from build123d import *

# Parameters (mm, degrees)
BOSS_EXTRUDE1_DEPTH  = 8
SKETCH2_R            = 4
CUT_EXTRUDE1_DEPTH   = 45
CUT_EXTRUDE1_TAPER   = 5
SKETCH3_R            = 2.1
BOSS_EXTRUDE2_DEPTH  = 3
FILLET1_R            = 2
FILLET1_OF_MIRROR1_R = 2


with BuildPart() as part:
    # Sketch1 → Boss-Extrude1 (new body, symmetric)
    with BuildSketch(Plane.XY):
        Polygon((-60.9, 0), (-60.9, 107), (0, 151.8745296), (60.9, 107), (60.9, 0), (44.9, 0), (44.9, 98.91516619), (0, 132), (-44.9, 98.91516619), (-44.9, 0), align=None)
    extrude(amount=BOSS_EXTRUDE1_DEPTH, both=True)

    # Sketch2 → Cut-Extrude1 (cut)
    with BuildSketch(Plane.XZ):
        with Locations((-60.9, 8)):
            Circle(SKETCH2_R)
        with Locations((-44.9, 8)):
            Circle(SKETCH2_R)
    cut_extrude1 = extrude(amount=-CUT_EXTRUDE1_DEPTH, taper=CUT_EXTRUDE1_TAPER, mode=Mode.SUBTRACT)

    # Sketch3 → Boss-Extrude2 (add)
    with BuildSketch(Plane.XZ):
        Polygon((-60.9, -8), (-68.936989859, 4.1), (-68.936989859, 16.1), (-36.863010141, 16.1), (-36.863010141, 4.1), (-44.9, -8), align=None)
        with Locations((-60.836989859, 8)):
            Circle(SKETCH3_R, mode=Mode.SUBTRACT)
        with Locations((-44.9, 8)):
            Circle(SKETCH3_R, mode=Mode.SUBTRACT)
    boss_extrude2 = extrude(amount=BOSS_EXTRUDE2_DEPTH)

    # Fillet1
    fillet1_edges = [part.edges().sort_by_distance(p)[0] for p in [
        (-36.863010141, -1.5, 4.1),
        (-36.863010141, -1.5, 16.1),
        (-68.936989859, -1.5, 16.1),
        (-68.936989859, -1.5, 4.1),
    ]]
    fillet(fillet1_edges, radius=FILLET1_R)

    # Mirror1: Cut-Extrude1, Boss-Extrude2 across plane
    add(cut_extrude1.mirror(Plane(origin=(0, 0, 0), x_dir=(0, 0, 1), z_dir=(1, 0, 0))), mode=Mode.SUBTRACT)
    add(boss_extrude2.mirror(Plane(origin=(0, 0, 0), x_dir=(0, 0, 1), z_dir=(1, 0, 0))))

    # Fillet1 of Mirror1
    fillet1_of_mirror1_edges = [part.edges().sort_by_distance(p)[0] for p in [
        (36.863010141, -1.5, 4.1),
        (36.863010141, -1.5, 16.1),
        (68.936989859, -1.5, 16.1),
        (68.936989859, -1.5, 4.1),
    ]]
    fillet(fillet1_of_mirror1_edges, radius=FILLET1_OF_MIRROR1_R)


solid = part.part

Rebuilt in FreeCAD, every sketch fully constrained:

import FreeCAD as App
import Part
import Sketcher

V = App.Vector


def edges_at(feature, points):
    """Names of the edges that pass closest to the given points."""
    edges = feature.Shape.Edges
    near = lambda p: min(range(len(edges)), key=lambda i: edges[i].distToShape(Part.Vertex(*p))[0])
    return sorted({f"Edge{near(p) + 1}" for p in points})

doc = App.newDocument("Part")
params = doc.addObject("Spreadsheet::Sheet", "Params")
for row, (alias, value) in enumerate([
    ("sketch1_width", "16 mm"),
    ("sketch1_height", "107 mm"),
    ("pad1_length", "16 mm"),
    ("sketch2_diameter", "8 mm"),
    ("pocket1_length", "45 mm"),
    ("pocket1_taper", "-5 deg"),
    ("sketch3_diameter", "4.2 mm"),
    ("sketch3_width", "16 mm"),
    ("sketch3_height", "12 mm"),
    ("pad2_length", "3 mm"),
    ("fillet_radius", "2 mm"),
    ("fillet2_radius", "2 mm"),
], start=1):
    params.set(f"A{row}", alias)
    params.set(f"B{row}", "=" + value)
    params.setAlias(f"B{row}", alias)

body = doc.addObject("PartDesign::Body", "Body")

# Sketch on XY plane
sketch1 = doc.addObject("Sketcher::SketchObject", "Sketch")
body.addObject(sketch1)
sketch1.AttachmentSupport = (doc.XY_Plane, [""])
sketch1.MapMode = "FlatFace"
sketch1.addGeometry([
    Part.LineSegment(V(-61, 107, 0), V(-61, 0, 0)),  # 0
    Part.LineSegment(V(-61, 0, 0), V(-45, 0, 0)),  # 1
    Part.LineSegment(V(-45, 0, 0), V(-45, 99, 0)),  # 2
    Part.LineSegment(V(-45, 99, 0), V(0, 132, 0)),  # 3
    Part.LineSegment(V(0, 132, 0), V(45, 99, 0)),  # 4
    Part.LineSegment(V(45, 99, 0), V(45, 0, 0)),  # 5
    Part.LineSegment(V(45, 0, 0), V(61, 0, 0)),  # 6
    Part.LineSegment(V(61, 0, 0), V(61, 107, 0)),  # 7
    Part.LineSegment(V(61, 107, 0), V(0, 152, 0)),  # 8
    Part.LineSegment(V(0, 152, 0), V(-61, 107, 0)),  # 9
], False)
sketch1.addConstraint([
    Sketcher.Constraint("Coincident", 0, 2, 1, 1),
    Sketcher.Constraint("Coincident", 1, 2, 2, 1),
    Sketcher.Constraint("Coincident", 2, 2, 3, 1),
    Sketcher.Constraint("Coincident", 3, 2, 4, 1),
    Sketcher.Constraint("Coincident", 4, 2, 5, 1),
    Sketcher.Constraint("Coincident", 5, 2, 6, 1),
    Sketcher.Constraint("Coincident", 6, 2, 7, 1),
    Sketcher.Constraint("Coincident", 7, 2, 8, 1),
    Sketcher.Constraint("Coincident", 8, 2, 9, 1),
    Sketcher.Constraint("Coincident", 9, 2, 0, 1),
    Sketcher.Constraint("Vertical", 0),
    Sketcher.Constraint("Horizontal", 1),
    Sketcher.Constraint("Vertical", 2),
    Sketcher.Constraint("Vertical", 5),
    Sketcher.Constraint("Horizontal", 6),
    Sketcher.Constraint("Vertical", 7),
    Sketcher.Constraint("Symmetric", 1, 2, 5, 2, -1, 1),
    Sketcher.Constraint("Symmetric", 0, 2, 6, 2, -2),
    Sketcher.Constraint("PointOnObject", 3, 2, -2),
    Sketcher.Constraint("PointOnObject", 8, 2, -2),
    Sketcher.Constraint("Parallel", 4, 8),
    Sketcher.Constraint("Parallel", 3, 9),
    Sketcher.Constraint("Horizontal", 2, 2, 4, 2),
    Sketcher.Constraint("DistanceX", 1, 1, 1, 2, 16.0),
    Sketcher.Constraint("DistanceY", 0, 2, 0, 1, 107.0),
    Sketcher.Constraint("DistanceY", -1, 1, 3, 2, 132.0),
    Sketcher.Constraint("DistanceX", 0, 2, -1, 1, 60.9),
    Sketcher.Constraint("Distance", 3, 55.772899),
])
sketch1.setExpression("Constraints[23]", "Params.sketch1_width")
sketch1.setExpression("Constraints[24]", "Params.sketch1_height")
pad1 = doc.addObject("PartDesign::Pad", "Pad")
body.addObject(pad1)
pad1.Profile = sketch1
pad1.setExpression("Length", "Params.pad1_length")
pad1.Midplane = True

# Sketch on XZ plane
sketch2 = doc.addObject("Sketcher::SketchObject", "Sketch001")
body.addObject(sketch2)
sketch2.AttachmentSupport = (doc.XZ_Plane, [""])
sketch2.MapMode = "FlatFace"
sketch2.addGeometry([
    Part.Circle(V(-60.9, 8, 0), V(0, 0, 1), 4),
    Part.Circle(V(-44.9, 8, 0), V(0, 0, 1), 4),
], False)
sketch2.addConstraint([
    Sketcher.Constraint("Equal", 0, 1),
    Sketcher.Constraint("Horizontal", 0, 3, 1, 3),
    Sketcher.Constraint("Diameter", 0, 8.0),
    Sketcher.Constraint("DistanceY", -1, 1, 0, 3, 8.0),
    Sketcher.Constraint("DistanceX", 0, 3, 1, 3, 16.0),
    Sketcher.Constraint("DistanceX", 0, 3, -1, 1, 60.9),
])
sketch2.setExpression("Constraints[2]", "Params.sketch2_diameter")
pocket1 = doc.addObject("PartDesign::Pocket", "Pocket")
body.addObject(pocket1)
pocket1.Profile = sketch2
pocket1.setExpression("Length", "Params.pocket1_length")
pocket1.setExpression("TaperAngle", "Params.pocket1_taper")

# Sketch on XZ plane
sketch3 = doc.addObject("Sketcher::SketchObject", "Sketch002")
body.addObject(sketch3)
sketch3.AttachmentSupport = (doc.XZ_Plane, [""])
sketch3.MapMode = "FlatFace"
sketch3.addGeometry([
    Part.LineSegment(V(-68.9, 4.1, 0), V(-60.9, -8, 0)),  # 0
    Part.LineSegment(V(-60.9, -8, 0), V(-44.9, -8, 0)),  # 1
    Part.LineSegment(V(-44.9, -8, 0), V(-36.9, 4.1, 0)),  # 2
    Part.LineSegment(V(-36.9, 4.1, 0), V(-36.9, 16.1, 0)),  # 3
    Part.LineSegment(V(-36.9, 16.1, 0), V(-68.9, 16.1, 0)),  # 4
    Part.LineSegment(V(-68.9, 16.1, 0), V(-68.9, 4.1, 0)),  # 5
    Part.Circle(V(-44.9, 8, 0), V(0, 0, 1), 2.1),  # 6
    Part.Circle(V(-60.8, 8, 0), V(0, 0, 1), 2.1),  # 7
], False)
sketch3.addConstraint([
    Sketcher.Constraint("Coincident", 0, 2, 1, 1),
    Sketcher.Constraint("Coincident", 1, 2, 2, 1),
    Sketcher.Constraint("Coincident", 2, 2, 3, 1),
    Sketcher.Constraint("Coincident", 3, 2, 4, 1),
    Sketcher.Constraint("Coincident", 4, 2, 5, 1),
    Sketcher.Constraint("Coincident", 5, 2, 0, 1),
    Sketcher.Constraint("Horizontal", 1),
    Sketcher.Constraint("Vertical", 3),
    Sketcher.Constraint("Horizontal", 4),
    Sketcher.Constraint("Vertical", 5),
    Sketcher.Constraint("Equal", 6, 7),
    Sketcher.Constraint("Horizontal", 6, 3, 7, 3),
    Sketcher.Constraint("Horizontal", 2, 2, 5, 2),
    Sketcher.Constraint("Vertical", 6, 3, 1, 2),
    Sketcher.Constraint("Equal", 0, 2),
    Sketcher.Constraint("Diameter", 6, 4.2),
    Sketcher.Constraint("DistanceX", 1, 1, 1, 2, 16.0),
    Sketcher.Constraint("DistanceY", 3, 1, 3, 2, 12.0),
    Sketcher.Constraint("DistanceY", -1, 1, 6, 3, 8.0),
    Sketcher.Constraint("DistanceY", 0, 2, -1, 1, 8.0),
    Sketcher.Constraint("DistanceX", 6, 3, -1, 1, 44.9),
    Sketcher.Constraint("DistanceY", -1, 1, 2, 2, 4.1),
    Sketcher.Constraint("DistanceX", 4, 2, 7, 3, 8.1),
    Sketcher.Constraint("DistanceX", 4, 2, 4, 1, 32.07398),
])
sketch3.setExpression("Constraints[15]", "Params.sketch3_diameter")
sketch3.setExpression("Constraints[16]", "Params.sketch3_width")
sketch3.setExpression("Constraints[17]", "Params.sketch3_height")
pad2 = doc.addObject("PartDesign::Pad", "Pad001")
body.addObject(pad2)
pad2.Profile = sketch3
pad2.setExpression("Length", "Params.pad2_length")
doc.recompute()

fillet = doc.addObject("PartDesign::Fillet", "Fillet")
body.addObject(fillet)
fillet.Base = (pad2, edges_at(pad2, [
    (-36.863, -1.5, 4.1),
    (-36.863, -1.5, 16.1),
    (-68.937, -1.5, 16.1),
    (-68.937, -1.5, 4.1),
]))
fillet.setExpression("Radius", "Params.fillet_radius")
doc.recompute()

mirrored = doc.addObject("PartDesign::Mirrored", "Mirrored")
body.addObject(mirrored)
mirrored.Originals = [pocket1, pad2]
mirrored.MirrorPlane = (doc.YZ_Plane, [""])
body.Tip = mirrored
doc.recompute()

fillet2 = doc.addObject("PartDesign::Fillet", "Fillet001")
body.addObject(fillet2)
fillet2.Base = (mirrored, edges_at(mirrored, [
    (36.863, -1.5, 4.1),
    (36.863, -1.5, 16.1),
    (68.937, -1.5, 16.1),
    (68.937, -1.5, 4.1),
]))
fillet2.setExpression("Radius", "Params.fillet2_radius")

doc.recompute()
